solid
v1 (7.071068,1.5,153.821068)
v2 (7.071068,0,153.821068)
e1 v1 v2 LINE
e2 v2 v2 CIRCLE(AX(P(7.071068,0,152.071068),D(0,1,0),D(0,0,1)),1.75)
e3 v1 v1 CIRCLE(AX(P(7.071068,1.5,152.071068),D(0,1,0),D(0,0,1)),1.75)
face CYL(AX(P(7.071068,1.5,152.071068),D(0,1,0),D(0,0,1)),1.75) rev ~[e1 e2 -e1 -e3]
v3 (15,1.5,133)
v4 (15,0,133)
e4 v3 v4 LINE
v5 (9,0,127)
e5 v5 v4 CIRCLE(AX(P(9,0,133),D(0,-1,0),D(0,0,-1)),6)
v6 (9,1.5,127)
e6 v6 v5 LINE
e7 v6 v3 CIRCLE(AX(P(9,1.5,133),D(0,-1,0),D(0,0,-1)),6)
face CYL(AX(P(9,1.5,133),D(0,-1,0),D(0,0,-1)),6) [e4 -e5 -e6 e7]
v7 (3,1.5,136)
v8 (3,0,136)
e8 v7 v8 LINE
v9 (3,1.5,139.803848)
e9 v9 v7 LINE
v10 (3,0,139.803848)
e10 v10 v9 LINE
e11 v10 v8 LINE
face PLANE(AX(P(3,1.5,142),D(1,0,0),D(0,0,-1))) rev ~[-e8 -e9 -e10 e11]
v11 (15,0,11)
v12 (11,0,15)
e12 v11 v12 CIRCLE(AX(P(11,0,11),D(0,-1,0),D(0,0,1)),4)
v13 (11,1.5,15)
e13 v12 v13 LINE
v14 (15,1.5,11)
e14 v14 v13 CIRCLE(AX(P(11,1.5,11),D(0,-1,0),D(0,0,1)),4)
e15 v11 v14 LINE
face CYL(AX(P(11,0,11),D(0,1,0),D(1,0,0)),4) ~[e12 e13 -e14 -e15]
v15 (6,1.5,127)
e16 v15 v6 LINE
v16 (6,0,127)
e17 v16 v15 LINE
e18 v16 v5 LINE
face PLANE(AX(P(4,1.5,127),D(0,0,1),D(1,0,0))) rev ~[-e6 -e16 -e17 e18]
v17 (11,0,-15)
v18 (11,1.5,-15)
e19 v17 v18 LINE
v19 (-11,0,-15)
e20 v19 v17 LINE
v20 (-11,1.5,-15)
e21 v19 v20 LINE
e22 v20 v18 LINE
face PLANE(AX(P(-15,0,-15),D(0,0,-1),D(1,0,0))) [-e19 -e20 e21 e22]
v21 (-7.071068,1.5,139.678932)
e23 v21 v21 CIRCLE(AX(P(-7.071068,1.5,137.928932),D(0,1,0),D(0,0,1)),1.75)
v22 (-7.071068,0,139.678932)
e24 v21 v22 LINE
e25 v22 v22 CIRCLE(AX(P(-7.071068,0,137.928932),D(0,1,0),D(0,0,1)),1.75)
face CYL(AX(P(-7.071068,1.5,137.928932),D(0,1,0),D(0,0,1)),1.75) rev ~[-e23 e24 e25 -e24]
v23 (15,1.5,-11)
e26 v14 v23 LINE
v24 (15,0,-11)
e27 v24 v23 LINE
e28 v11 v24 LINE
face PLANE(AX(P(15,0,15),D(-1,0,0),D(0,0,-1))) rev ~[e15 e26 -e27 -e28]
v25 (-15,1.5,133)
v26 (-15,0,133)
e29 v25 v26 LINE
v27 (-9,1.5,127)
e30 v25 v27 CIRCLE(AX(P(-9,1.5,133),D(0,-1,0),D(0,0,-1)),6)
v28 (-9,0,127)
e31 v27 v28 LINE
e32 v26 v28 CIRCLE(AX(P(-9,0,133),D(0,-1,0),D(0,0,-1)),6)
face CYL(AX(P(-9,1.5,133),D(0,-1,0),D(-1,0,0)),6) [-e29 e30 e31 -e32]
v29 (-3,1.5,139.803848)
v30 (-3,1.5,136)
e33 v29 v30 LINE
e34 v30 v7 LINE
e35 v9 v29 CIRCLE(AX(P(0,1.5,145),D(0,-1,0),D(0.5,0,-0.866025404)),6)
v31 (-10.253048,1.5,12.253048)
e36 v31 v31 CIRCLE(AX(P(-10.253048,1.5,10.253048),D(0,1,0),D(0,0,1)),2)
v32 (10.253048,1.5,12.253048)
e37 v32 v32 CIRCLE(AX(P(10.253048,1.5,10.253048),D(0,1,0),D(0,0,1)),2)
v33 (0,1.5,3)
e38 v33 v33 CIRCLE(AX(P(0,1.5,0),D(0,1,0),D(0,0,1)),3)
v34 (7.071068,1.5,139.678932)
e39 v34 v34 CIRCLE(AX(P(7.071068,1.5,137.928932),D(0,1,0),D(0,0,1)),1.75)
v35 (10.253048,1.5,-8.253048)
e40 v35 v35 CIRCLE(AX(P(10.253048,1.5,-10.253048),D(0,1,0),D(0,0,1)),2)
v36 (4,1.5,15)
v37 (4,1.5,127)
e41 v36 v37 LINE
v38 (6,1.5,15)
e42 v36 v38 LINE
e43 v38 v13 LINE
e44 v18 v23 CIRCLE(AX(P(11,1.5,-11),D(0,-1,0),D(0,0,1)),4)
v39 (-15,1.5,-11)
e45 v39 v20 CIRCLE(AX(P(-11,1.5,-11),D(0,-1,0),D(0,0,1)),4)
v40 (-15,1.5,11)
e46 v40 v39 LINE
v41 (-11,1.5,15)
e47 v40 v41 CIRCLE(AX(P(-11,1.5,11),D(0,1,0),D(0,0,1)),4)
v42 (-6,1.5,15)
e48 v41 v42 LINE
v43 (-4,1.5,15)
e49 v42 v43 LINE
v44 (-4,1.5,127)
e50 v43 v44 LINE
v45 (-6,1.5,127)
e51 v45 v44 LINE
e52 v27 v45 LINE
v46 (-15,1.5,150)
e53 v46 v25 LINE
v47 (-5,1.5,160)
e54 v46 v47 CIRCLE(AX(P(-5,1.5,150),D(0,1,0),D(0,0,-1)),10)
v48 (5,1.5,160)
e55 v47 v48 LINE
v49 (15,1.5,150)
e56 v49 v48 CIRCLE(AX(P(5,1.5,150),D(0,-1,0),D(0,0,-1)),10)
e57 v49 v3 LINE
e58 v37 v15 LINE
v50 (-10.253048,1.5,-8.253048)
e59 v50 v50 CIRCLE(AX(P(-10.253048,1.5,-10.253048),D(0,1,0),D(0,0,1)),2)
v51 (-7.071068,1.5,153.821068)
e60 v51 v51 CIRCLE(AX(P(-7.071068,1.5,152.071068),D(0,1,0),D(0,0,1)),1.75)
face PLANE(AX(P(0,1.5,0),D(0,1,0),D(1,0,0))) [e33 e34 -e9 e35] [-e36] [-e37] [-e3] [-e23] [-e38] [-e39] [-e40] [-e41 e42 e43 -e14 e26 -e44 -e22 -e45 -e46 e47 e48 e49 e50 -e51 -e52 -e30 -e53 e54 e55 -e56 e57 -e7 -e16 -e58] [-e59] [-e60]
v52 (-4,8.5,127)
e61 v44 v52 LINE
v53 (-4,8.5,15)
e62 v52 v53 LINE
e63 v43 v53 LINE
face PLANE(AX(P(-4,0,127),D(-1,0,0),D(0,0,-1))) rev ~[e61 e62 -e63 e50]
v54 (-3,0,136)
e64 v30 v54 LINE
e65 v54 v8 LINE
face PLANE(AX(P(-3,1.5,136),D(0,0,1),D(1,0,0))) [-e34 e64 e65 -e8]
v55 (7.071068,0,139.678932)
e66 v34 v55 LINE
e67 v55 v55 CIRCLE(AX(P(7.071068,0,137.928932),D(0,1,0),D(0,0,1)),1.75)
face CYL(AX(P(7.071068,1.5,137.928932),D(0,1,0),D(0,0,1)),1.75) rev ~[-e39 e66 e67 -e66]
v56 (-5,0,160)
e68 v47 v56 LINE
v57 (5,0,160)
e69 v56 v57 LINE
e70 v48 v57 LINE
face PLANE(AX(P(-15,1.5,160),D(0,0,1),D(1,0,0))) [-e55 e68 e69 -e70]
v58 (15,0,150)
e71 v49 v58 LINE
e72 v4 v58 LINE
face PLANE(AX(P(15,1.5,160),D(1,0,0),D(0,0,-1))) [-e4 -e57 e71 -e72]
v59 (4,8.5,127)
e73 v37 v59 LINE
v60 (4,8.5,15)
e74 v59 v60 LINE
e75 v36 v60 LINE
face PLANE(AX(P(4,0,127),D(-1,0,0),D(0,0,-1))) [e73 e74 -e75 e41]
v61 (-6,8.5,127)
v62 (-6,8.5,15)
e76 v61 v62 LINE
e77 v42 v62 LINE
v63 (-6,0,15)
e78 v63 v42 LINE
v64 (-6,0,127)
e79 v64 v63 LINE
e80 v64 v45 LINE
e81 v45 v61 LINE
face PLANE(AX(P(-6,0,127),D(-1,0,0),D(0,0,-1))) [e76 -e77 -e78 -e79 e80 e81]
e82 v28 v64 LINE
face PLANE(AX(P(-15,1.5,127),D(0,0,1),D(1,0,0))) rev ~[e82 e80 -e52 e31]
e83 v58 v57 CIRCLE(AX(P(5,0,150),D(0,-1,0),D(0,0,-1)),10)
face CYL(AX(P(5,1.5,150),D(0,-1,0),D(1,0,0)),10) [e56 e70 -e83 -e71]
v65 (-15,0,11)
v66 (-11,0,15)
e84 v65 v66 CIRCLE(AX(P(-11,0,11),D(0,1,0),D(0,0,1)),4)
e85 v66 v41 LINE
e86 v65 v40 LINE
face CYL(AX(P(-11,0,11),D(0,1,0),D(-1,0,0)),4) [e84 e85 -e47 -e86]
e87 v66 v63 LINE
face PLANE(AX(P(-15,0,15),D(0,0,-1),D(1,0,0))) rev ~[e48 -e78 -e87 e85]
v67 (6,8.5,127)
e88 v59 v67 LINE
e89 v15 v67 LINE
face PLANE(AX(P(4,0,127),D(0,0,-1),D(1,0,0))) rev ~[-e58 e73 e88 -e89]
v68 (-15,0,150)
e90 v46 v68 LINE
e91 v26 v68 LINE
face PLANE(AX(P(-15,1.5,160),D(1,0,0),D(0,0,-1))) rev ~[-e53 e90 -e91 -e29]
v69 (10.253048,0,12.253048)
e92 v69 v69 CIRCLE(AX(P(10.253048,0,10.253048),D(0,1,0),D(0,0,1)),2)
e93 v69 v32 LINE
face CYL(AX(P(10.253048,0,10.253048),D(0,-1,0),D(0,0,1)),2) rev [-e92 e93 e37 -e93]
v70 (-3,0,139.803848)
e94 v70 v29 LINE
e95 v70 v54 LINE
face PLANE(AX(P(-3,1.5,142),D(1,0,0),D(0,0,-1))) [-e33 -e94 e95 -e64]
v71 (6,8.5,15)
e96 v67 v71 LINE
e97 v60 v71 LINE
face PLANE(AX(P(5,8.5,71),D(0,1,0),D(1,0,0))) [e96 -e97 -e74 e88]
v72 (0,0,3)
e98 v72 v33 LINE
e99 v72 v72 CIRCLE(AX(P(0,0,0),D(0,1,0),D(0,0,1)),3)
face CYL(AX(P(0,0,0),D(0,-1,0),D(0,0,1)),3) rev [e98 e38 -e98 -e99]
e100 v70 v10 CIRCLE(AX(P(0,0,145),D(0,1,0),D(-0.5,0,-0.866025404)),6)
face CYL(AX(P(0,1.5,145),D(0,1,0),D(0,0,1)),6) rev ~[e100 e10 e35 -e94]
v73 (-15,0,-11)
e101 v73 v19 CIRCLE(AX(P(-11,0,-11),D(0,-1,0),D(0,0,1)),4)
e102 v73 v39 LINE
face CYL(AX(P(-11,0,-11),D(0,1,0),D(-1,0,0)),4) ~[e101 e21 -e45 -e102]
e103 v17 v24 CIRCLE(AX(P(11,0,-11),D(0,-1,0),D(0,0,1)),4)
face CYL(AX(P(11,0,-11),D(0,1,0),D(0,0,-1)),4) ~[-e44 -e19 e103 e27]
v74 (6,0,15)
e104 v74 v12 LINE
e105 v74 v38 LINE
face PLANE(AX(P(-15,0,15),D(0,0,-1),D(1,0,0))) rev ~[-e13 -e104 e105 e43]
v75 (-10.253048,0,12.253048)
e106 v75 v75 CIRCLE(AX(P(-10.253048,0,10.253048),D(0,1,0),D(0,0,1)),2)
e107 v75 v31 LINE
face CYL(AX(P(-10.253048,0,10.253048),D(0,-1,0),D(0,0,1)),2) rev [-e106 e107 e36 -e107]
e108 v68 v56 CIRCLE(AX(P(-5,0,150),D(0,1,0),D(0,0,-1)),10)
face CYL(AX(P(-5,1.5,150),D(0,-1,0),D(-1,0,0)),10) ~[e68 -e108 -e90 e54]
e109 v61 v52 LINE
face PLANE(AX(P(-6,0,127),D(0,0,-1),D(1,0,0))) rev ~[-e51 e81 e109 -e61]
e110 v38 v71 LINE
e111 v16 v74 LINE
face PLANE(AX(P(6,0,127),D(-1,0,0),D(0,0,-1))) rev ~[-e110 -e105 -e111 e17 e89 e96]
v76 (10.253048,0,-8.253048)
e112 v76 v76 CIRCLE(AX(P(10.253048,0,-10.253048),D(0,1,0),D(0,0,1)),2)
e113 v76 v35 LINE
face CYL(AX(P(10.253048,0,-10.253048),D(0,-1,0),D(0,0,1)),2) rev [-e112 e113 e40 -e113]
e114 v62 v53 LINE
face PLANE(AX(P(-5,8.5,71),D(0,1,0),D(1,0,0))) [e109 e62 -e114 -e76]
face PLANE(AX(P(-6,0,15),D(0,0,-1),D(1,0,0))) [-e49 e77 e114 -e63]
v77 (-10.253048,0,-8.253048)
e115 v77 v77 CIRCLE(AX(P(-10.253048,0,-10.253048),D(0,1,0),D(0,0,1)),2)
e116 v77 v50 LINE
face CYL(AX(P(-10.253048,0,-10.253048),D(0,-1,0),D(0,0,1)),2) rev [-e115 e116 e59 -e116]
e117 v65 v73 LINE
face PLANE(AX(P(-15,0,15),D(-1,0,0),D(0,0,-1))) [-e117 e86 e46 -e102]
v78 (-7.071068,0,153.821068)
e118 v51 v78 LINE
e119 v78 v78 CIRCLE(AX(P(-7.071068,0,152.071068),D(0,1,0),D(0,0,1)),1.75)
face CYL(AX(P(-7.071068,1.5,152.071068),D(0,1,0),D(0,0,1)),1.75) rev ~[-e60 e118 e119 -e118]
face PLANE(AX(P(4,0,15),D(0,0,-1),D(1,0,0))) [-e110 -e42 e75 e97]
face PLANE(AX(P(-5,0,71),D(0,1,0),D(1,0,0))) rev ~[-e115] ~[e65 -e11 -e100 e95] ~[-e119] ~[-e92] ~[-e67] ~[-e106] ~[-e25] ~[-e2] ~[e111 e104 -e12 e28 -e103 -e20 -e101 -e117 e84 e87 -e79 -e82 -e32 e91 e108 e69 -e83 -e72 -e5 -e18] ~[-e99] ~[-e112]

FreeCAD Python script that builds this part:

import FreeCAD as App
import Part
import Sketcher

V = App.Vector
Q = App.Units.Quantity


def edges_at(feature, points):
    """Names of the edges that pass closest to the given points."""
    edges = feature.Shape.Edges
    near = lambda p: min(range(len(edges)), key=lambda i: edges[i].distToShape(Part.Vertex(*p))[0])
    return sorted({f"Edge{near(p) + 1}" for p in points})


def add_polygon(sketch, points):
    """Adds a closed chain of lines whose ends are joined by coincident constraints."""
    first, n = sketch.GeometryCount, len(points)
    for a, b in zip(points, points[1:] + points[:1]):
        sketch.addGeometry(Part.LineSegment(App.Vector(*a, 0), App.Vector(*b, 0)), False)
    for i in range(n):
        sketch.addConstraint(Sketcher.Constraint("Coincident", first + i, 2, first + (i + 1) % n, 1))

doc = App.newDocument("Part")
body = doc.addObject("PartDesign::Body", "Body")

sketch1 = body.newObject("Sketcher::SketchObject", "Sketch")
sketch1.AttachmentSupport = (doc.getObject("XZ_Plane"), [""])
sketch1.MapMode = "FlatFace"
add_polygon(sketch1, [(-15, -8), (-15, 23), (15, 23), (15, -8)])
sketch1.addGeometry(Part.Circle(V(0, 0, 0), V(0, 0, 1), 3), False)
sketch1.addConstraint([
    Sketcher.Constraint("Vertical", 0),
    Sketcher.Constraint("Horizontal", 1),
    Sketcher.Constraint("Vertical", 2),
    Sketcher.Constraint("Horizontal", 3),
    Sketcher.Constraint("Coincident", 4, 3, -1, 1),
    Sketcher.Constraint("Diameter", 4, Q("6 mm")),
    Sketcher.Constraint("DistanceX", 1, 1, 1, 2, Q("30 mm")),
    Sketcher.Constraint("DistanceY", 0, 1, 0, 2, Q("31 mm")),
    Sketcher.Constraint("DistanceX", 0, 2, -1, 1, Q("15 mm")),
    Sketcher.Constraint("DistanceY", -1, 1, 0, 2, Q("23 mm")),
])
pad1 = body.newObject("PartDesign::Pad", "Pad")
pad1.Profile = sketch1
pad1.Length = 1.5
pad1.Reversed = True

sketch2 = body.newObject("Sketcher::SketchObject", "Sketch001")
sketch2.AttachmentSupport = (doc.getObject("XZ_Plane"), [""])
sketch2.MapMode = "FlatFace"
sketch2.AttachmentOffset = App.Placement(V(0, 0, -1.5), App.Rotation())
add_polygon(sketch2, [(-15, 23), (-15, 160), (15, 160), (15, 23)])
sketch2.addGeometry(Part.Circle(V(-7.1, 152.1, 0), V(0, 0, 1), 1.8), False)
sketch2.addGeometry(Part.Circle(V(7.1, 152.1, 0), V(0, 0, 1), 1.8), False)
sketch2.addGeometry(Part.Circle(V(-7.1, 137.9, 0), V(0, 0, 1), 1.8), False)
sketch2.addGeometry(Part.Circle(V(0, 145, 0), V(0, 0, 1), 6), False)
sketch2.addGeometry(Part.Circle(V(7.1, 137.9, 0), V(0, 0, 1), 1.8), False)
sketch2.addConstraint([
    Sketcher.Constraint("Vertical", 0),
    Sketcher.Constraint("Horizontal", 1),
    Sketcher.Constraint("Vertical", 2),
    Sketcher.Constraint("Horizontal", 3),
    Sketcher.Constraint("Equal", 4, 5),
    Sketcher.Constraint("Equal", 5, 6),
    Sketcher.Constraint("Equal", 6, 8),
    Sketcher.Constraint("Symmetric", 4, 3, 5, 3, -2),
    Sketcher.Constraint("Symmetric", 6, 3, 8, 3, -2),
    Sketcher.Constraint("PointOnObject", 7, 3, -2),
    Sketcher.Constraint("Vertical", 4, 3, 6, 3),
    Sketcher.Constraint("Diameter", 7, Q("12 mm")),
    Sketcher.Constraint("Diameter", 4, Q("3.5 mm")),
    Sketcher.Constraint("DistanceX", 1, 1, 1, 2, Q("30 mm")),
    Sketcher.Constraint("DistanceY", 0, 1, 0, 2, Q("137 mm")),
    Sketcher.Constraint("DistanceY", -1, 1, 7, 3, Q("145 mm")),
    Sketcher.Constraint("DistanceX", 0, 2, -1, 1, Q("15 mm")),
    Sketcher.Constraint("DistanceY", -1, 1, 0, 2, Q("160 mm")),
    Sketcher.Constraint("DistanceX", 4, 3, -1, 1, Q("7.071068 mm")),
    Sketcher.Constraint("DistanceY", -1, 1, 4, 3, Q("152.071068 mm")),
    Sketcher.Constraint("DistanceY", -1, 1, 6, 3, Q("137.928932 mm")),
])
pad2 = body.newObject("PartDesign::Pad", "Pad001")
pad2.Profile = sketch2
pad2.Length = 1.5

sketch3 = body.newObject("Sketcher::SketchObject", "Sketch002")
sketch3.AttachmentSupport = (doc.getObject("XZ_Plane"), [""])
sketch3.MapMode = "FlatFace"
sketch3.AttachmentOffset = App.Placement(V(0, 0, -1.5), App.Rotation())
add_polygon(sketch3, [(-3, 136), (-3, 142), (3, 142), (3, 136)])
sketch3.addConstraint([
    Sketcher.Constraint("Vertical", 0),
    Sketcher.Constraint("Horizontal", 1),
    Sketcher.Constraint("Vertical", 2),
    Sketcher.Constraint("Horizontal", 3),
    Sketcher.Constraint("Equal", 3, 0),
    Sketcher.Constraint("DistanceX", 1, 1, 1, 2, Q("6 mm")),
    Sketcher.Constraint("DistanceX", 0, 2, -1, 1, Q("3 mm")),
    Sketcher.Constraint("DistanceY", -1, 1, 0, 2, Q("142 mm")),
])
pocket1 = body.newObject("PartDesign::Pocket", "Pocket")
pocket1.Profile = sketch3
pocket1.Type = "ThroughAll"
pocket1.Reversed = True
doc.recompute()

fillet = body.newObject("PartDesign::Fillet", "Fillet")
fillet.Base = (pocket1, edges_at(pocket1, [(-15, 0.75, 160), (15, 0.75, 160)]))
fillet.Radius = 10

sketch4 = body.newObject("Sketcher::SketchObject", "Sketch003")
sketch4.AttachmentSupport = (doc.getObject("XZ_Plane"), [""])
sketch4.MapMode = "FlatFace"
sketch4.AttachmentOffset = App.Placement(V(0, 0, -1.5), App.Rotation())
add_polygon(sketch4, [(-8, 8), (-8, -8), (-15, -8), (-15, 127), (-4, 127), (-4, 8)])
add_polygon(sketch4, [(15, -8), (8, -8), (8, 8), (4, 8), (4, 127), (15, 127)])
sketch4.addConstraint([
    Sketcher.Constraint("Vertical", 0),
    Sketcher.Constraint("Horizontal", 1),
    Sketcher.Constraint("Vertical", 2),
    Sketcher.Constraint("Horizontal", 3),
    Sketcher.Constraint("Vertical", 4),
    Sketcher.Constraint("Horizontal", 5),
    Sketcher.Constraint("Horizontal", 6),
    Sketcher.Constraint("Vertical", 7),
    Sketcher.Constraint("Horizontal", 8),
    Sketcher.Constraint("Vertical", 9),
    Sketcher.Constraint("Horizontal", 10),
    Sketcher.Constraint("Vertical", 11),
    Sketcher.Constraint("Symmetric", 5, 2, 6, 2, -1, 1),
    Sketcher.Constraint("Symmetric", 4, 2, 8, 2, -2),
    Sketcher.Constraint("Symmetric", 2, 2, 10, 2, -2),
    Sketcher.Constraint("Horizontal", 1, 2, 6, 2),
    Sketcher.Constraint("DistanceX", 1, 2, 1, 1, Q("7 mm")),
    Sketcher.Constraint("DistanceX", 3, 1, 3, 2, Q("11 mm")),
    Sketcher.Constraint("DistanceY", 0, 2, 0, 1, Q("16 mm")),
    Sketcher.Constraint("DistanceY", 2, 1, 2, 2, Q("135 mm")),
    Sketcher.Constraint("DistanceX", 0, 2, -1, 1, Q("8 mm")),
])
pocket2 = body.newObject("PartDesign::Pocket", "Pocket001")
pocket2.Profile = sketch4
pocket2.Type = "ThroughAll"
pocket2.Reversed = True
doc.recompute()

fillet2 = body.newObject("PartDesign::Fillet", "Fillet001")
fillet2.Base = (pocket2, edges_at(pocket2, [(-15, 0.75, 127), (15, 0.75, 127)]))
fillet2.Radius = 6

sketch5 = body.newObject("Sketcher::SketchObject", "Sketch004")
sketch5.AttachmentSupport = (doc.getObject("XZ_Plane"), [""])
sketch5.MapMode = "FlatFace"
add_polygon(sketch5, [(-15, -15), (-15, 15), (15, 15), (15, -15)])
sketch5.addGeometry(Part.Circle(V(-10.3, 10.3, 0), V(0, 0, 1), 2), False)
sketch5.addGeometry(Part.Circle(V(10.3, 10.3, 0), V(0, 0, 1), 2), False)
sketch5.addGeometry(Part.Circle(V(-10.3, -10.3, 0), V(0, 0, 1), 2), False)
sketch5.addGeometry(Part.Circle(V(0, 0, 0), V(0, 0, 1), 3), False)
sketch5.addGeometry(Part.Circle(V(10.3, -10.3, 0), V(0, 0, 1), 2), False)
sketch5.addConstraint([
    Sketcher.Constraint("Vertical", 0),
    Sketcher.Constraint("Horizontal", 1),
    Sketcher.Constraint("Vertical", 2),
    Sketcher.Constraint("Horizontal", 3),
    Sketcher.Constraint("Coincident", 7, 3, -1, 1),
    Sketcher.Constraint("Equal", 4, 5),
    Sketcher.Constraint("Equal", 5, 6),
    Sketcher.Constraint("Equal", 6, 8),
    Sketcher.Constraint("Symmetric", 5, 3, 6, 3, -1, 1),
    Sketcher.Constraint("Symmetric", 4, 3, 8, 3, -1, 1),
    Sketcher.Constraint("Symmetric", 0, 2, 2, 2, -1, 1),
    Sketcher.Constraint("Symmetric", 4, 3, 5, 3, -2),
    Sketcher.Constraint("Equal", 3, 0),
    Sketcher.Constraint("Diameter", 4, Q("4 mm")),
    Sketcher.Constraint("Diameter", 7, Q("6 mm")),
    Sketcher.Constraint("DistanceX", 1, 1, 1, 2, Q("30 mm")),
    Sketcher.Constraint("DistanceX", 4, 3, -1, 1, Q("10.253048 mm")),
    Sketcher.Constraint("DistanceY", -1, 1, 4, 3, Q("10.253048 mm")),
])
pad3 = body.newObject("PartDesign::Pad", "Pad002")
pad3.Profile = sketch5
pad3.Length = 1.5
pad3.Reversed = True
doc.recompute()

fillet3 = body.newObject("PartDesign::Fillet", "Fillet002")
fillet3.Base = (pad3, edges_at(pad3, [
    (15, 0.75, 15),
    (15, 0.75, -15),
    (-15, 0.75, 15),
    (-15, 0.75, -15),
]))
fillet3.Radius = 4

sketch6 = body.newObject("Sketcher::SketchObject", "Sketch005")
sketch6.AttachmentSupport = (doc.getObject("XZ_Plane"), [""])
sketch6.MapMode = "FlatFace"
sketch6.AttachmentOffset = App.Placement(V(0, 0, -1.5), App.Rotation())
add_polygon(sketch6, [(-6, 15), (-6, 127), (-4, 127), (-4, 15)])
add_polygon(sketch6, [(4, 15), (4, 127), (6, 127), (6, 15)])
sketch6.addConstraint([
    Sketcher.Constraint("Vertical", 0),
    Sketcher.Constraint("Horizontal", 1),
    Sketcher.Constraint("Vertical", 2),
    Sketcher.Constraint("Horizontal", 3),
    Sketcher.Constraint("Vertical", 4),
    Sketcher.Constraint("Horizontal", 5),
    Sketcher.Constraint("Vertical", 6),
    Sketcher.Constraint("Horizontal", 7),
    Sketcher.Constraint("Symmetric", 1, 2, 4, 2, -2),
    Sketcher.Constraint("Symmetric", 3, 2, 6, 2, -2),
    Sketcher.Constraint("DistanceX", 1, 1, 1, 2, Q("2 mm")),
    Sketcher.Constraint("DistanceY", 0, 1, 0, 2, Q("112 mm")),
    Sketcher.Constraint("DistanceX", 0, 2, -1, 1, Q("6 mm")),
    Sketcher.Constraint("DistanceY", -1, 1, 0, 2, Q("127 mm")),
])
pad4 = body.newObject("PartDesign::Pad", "Pad003")
pad4.Profile = sketch6
pad4.Type = "TwoLengths"
pad4.Length = 7
pad4.Length2 = 1.5
pad4.Reversed = True

doc.recompute()
